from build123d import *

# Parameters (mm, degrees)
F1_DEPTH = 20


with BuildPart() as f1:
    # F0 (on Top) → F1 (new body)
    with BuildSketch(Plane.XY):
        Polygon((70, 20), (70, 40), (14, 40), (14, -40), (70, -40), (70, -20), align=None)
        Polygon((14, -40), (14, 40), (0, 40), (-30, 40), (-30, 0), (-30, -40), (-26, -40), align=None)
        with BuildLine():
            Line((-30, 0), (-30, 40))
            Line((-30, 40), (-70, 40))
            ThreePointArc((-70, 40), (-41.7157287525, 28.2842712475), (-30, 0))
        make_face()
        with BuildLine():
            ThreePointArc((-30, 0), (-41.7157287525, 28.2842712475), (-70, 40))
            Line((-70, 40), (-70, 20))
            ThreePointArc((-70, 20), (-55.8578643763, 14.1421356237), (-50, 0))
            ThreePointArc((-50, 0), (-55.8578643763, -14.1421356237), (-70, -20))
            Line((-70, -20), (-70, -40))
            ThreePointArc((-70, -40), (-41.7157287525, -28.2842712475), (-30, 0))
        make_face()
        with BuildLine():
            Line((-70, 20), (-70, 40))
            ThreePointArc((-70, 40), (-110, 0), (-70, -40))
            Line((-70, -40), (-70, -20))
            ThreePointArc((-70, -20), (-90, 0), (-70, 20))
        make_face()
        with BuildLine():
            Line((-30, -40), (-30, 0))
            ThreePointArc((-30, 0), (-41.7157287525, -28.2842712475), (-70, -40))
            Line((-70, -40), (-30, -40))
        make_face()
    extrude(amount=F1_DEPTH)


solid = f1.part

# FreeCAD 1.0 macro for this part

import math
import FreeCAD as App
import Part
import Sketcher
from FreeCAD import Vector

doc = App.newDocument("Part")
body = doc.addObject("PartDesign::Body", "Body")

# Sketch on XY plane
sketch1 = doc.addObject("Sketcher::SketchObject", "Sketch")
body.addObject(sketch1)
sketch1.AttachmentSupport = (doc.XY_Plane, [""])
sketch1.MapMode = "FlatFace"
sketch1.addGeometry([
    Part.LineSegment(Vector(70, 40, 0), Vector(-70, 40, 0)),  # 0
    Part.ArcOfCircle(Part.Circle(Vector(-70, 0, 0), Vector(0, 0, 1), 40), math.radians(90), math.radians(270)),  # 1
    Part.LineSegment(Vector(-70, -40, 0), Vector(70, -40, 0)),  # 2
    Part.LineSegment(Vector(70, -40, 0), Vector(70, 40, 0)),  # 3
    Part.ArcOfCircle(Part.Circle(Vector(-70, 0, 0), Vector(0, 0, 1), 20), math.radians(0), math.radians(90)),  # 4
    Part.ArcOfCircle(Part.Circle(Vector(-70, 0, 0), Vector(0, 0, 1), 20), math.radians(-90), math.radians(0)),  # 5
    Part.ArcOfCircle(Part.Circle(Vector(-70, 0, 0), Vector(0, 0, 1), 20), math.radians(90), math.radians(270)),  # 6
], False)
sketch1.addConstraint([
    Sketcher.Constraint("Tangent", 0, 2, 1, 1),
    Sketcher.Constraint("Tangent", 1, 2, 2, 1),
    Sketcher.Constraint("Coincident", 2, 2, 3, 1),
    Sketcher.Constraint("Coincident", 3, 2, 0, 1),
    Sketcher.Constraint("Tangent", 4, 1, 5, 2),
    Sketcher.Constraint("Tangent", 5, 1, 6, 2),
    Sketcher.Constraint("Tangent", 6, 1, 4, 2),
    Sketcher.Constraint("Horizontal", 0),
    Sketcher.Constraint("Horizontal", 2),
    Sketcher.Constraint("Vertical", 3),
    Sketcher.Constraint("Coincident", 4, 3, 1, 3),
    Sketcher.Constraint("Symmetric", 0, 2, 2, 2, -1, 1),
    Sketcher.Constraint("PointOnObject", 4, 1, -1),
    Sketcher.Constraint("Vertical", 1, 2, 5, 1),
    Sketcher.Constraint("Vertical", 5, 1, 6, 1),
    Sketcher.Constraint("Radius", 1, 40.0),
    Sketcher.Constraint("Radius", 4, 20.0),
    Sketcher.Constraint("DistanceX", 0, 2, 0, 1, 140.0),
])
pad1 = doc.addObject("PartDesign::Pad", "Pad")
body.addObject(pad1)
pad1.Profile = sketch1
pad1.Length = 20

doc.recompute()
